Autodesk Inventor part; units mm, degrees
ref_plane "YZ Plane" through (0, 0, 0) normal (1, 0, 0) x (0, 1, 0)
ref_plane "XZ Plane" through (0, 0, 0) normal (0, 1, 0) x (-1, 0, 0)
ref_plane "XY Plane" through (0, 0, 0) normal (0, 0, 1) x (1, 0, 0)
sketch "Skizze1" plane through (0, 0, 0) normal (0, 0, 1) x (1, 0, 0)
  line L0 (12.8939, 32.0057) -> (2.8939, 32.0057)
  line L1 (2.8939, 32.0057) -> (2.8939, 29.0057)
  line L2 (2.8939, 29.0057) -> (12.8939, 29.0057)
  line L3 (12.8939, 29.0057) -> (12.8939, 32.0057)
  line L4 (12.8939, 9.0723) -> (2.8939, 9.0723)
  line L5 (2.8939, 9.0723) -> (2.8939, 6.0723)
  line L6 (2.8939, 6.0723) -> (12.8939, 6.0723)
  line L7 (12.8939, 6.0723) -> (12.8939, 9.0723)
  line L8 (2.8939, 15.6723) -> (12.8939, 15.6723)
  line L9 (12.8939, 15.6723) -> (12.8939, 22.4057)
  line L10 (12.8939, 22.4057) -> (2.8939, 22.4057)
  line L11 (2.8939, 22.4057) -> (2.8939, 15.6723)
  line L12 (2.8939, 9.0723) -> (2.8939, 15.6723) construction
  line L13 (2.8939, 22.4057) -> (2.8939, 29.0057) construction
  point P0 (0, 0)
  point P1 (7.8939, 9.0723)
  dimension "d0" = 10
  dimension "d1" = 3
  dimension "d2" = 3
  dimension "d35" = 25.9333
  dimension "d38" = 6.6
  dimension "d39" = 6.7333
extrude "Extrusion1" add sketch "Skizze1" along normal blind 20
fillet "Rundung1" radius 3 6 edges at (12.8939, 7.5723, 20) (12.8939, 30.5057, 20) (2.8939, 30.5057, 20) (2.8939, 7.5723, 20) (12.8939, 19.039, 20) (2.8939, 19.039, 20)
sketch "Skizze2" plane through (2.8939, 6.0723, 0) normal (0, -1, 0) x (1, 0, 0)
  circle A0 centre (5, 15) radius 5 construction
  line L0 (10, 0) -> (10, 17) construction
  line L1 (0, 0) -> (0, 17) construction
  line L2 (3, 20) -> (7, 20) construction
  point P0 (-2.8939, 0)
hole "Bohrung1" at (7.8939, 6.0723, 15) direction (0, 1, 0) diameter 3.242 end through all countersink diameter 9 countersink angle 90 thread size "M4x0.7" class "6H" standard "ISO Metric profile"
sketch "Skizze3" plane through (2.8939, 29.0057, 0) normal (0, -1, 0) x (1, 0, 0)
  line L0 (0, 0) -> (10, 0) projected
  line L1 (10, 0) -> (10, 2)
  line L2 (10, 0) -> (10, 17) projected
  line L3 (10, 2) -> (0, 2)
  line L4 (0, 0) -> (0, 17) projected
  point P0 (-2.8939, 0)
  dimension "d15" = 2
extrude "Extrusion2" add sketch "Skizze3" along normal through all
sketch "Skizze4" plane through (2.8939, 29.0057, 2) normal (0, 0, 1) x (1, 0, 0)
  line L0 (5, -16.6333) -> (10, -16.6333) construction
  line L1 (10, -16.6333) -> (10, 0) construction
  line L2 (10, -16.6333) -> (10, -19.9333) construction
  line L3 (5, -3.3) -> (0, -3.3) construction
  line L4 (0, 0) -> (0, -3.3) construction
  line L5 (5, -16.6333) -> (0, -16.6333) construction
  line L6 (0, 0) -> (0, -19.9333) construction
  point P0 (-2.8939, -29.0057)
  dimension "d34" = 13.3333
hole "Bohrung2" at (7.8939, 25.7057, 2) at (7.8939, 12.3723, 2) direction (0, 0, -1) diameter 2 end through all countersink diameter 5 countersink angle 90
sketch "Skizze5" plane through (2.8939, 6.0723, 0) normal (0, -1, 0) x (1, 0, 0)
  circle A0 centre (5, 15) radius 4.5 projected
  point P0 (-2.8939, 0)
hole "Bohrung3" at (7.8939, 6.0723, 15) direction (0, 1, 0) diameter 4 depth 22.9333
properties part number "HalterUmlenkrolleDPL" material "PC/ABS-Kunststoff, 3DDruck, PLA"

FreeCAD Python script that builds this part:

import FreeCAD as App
import Part
import Sketcher
from FreeCAD import Vector
Q = App.Units.Quantity


def edges_at(feature, points):
    """Names of the edges that pass closest to the given points."""
    edges = feature.Shape.Edges
    near = lambda p: min(range(len(edges)), key=lambda i: edges[i].distToShape(Part.Vertex(*p))[0])
    return sorted({f"Edge{near(p) + 1}" for p in points})


def add_polygon(sketch, points):
    """Adds a closed chain of lines whose ends are joined by coincident constraints."""
    first, n = sketch.GeometryCount, len(points)
    for a, b in zip(points, points[1:] + points[:1]):
        sketch.addGeometry(Part.LineSegment(App.Vector(*a, 0), App.Vector(*b, 0)), False)
    for i in range(n):
        sketch.addConstraint(Sketcher.Constraint("Coincident", first + i, 2, first + (i + 1) % n, 1))

doc = App.newDocument("Part")
body = doc.addObject("PartDesign::Body", "Body")
body.AllowCompound = True

sketch1 = body.newObject("Sketcher::SketchObject", "Sketch")
sketch1.AttachmentSupport = (doc.getObject("XY_Plane"), [""])
sketch1.MapMode = "FlatFace"
add_polygon(sketch1, [(12.9, 29), (12.9, 32), (2.9, 32), (2.9, 29)])
add_polygon(sketch1, [(12.9, 6.1), (12.9, 9.1), (2.9, 9.1), (2.9, 6.1)])
add_polygon(sketch1, [(2.9, 22.4), (2.9, 15.7), (12.9, 15.7), (12.9, 22.4)])
sketch1.addConstraint([
    Sketcher.Constraint("Vertical", 0),
    Sketcher.Constraint("Horizontal", 1),
    Sketcher.Constraint("Vertical", 2),
    Sketcher.Constraint("Horizontal", 3),
    Sketcher.Constraint("Vertical", 4),
    Sketcher.Constraint("Horizontal", 5),
    Sketcher.Constraint("Vertical", 6),
    Sketcher.Constraint("Horizontal", 7),
    Sketcher.Constraint("Vertical", 8),
    Sketcher.Constraint("Horizontal", 9),
    Sketcher.Constraint("Vertical", 10),
    Sketcher.Constraint("Horizontal", 11),
    Sketcher.Constraint("Vertical", 3, 2, 4, 2),
    Sketcher.Constraint("Vertical", 2, 2, 5, 2),
    Sketcher.Constraint("Vertical", 6, 2, 8, 2),
    Sketcher.Constraint("Vertical", 7, 2, 9, 2),
    Sketcher.Constraint("Equal", 2, 4),
    Sketcher.Constraint("DistanceX", 1, 2, 1, 1, Q("10 mm")),
    Sketcher.Constraint("DistanceY", 0, 1, 0, 2, Q("3 mm")),
    Sketcher.Constraint("DistanceY", 5, 2, 8, 2, Q("6.6 mm")),
    Sketcher.Constraint("DistanceY", 10, 2, 3, 2, Q("6.6 mm")),
    Sketcher.Constraint("DistanceY", 8, 2, 8, 1, Q("6.7334 mm")),
    Sketcher.Constraint("DistanceX", -1, 1, 0, 2, Q("12.894 mm")),
    Sketcher.Constraint("DistanceY", -1, 1, 0, 2, Q("32.0057 mm")),
])
pad1 = body.newObject("PartDesign::Pad", "Pad")
pad1.Profile = sketch1
pad1.Length = 20
doc.recompute()

fillet = body.newObject("PartDesign::Fillet", "Fillet")
fillet.Base = (pad1, edges_at(pad1, [
    (12.894, 7.572, 20),
    (12.894, 30.506, 20),
    (2.894, 30.506, 20),
    (2.894, 7.572, 20),
    (12.894, 19.039, 20),
    (2.894, 19.039, 20),
]))
fillet.Radius = 3

sketch2 = body.newObject("Sketcher::SketchObject", "Sketch001")
sketch2.AttachmentSupport = (doc.getObject("XZ_Plane"), [""])
sketch2.MapMode = "FlatFace"
sketch2.AttachmentOffset = App.Placement(Vector(0, 0, -6.0723), App.Rotation())
sketch2.addGeometry(Part.Circle(Vector(7.9, 15, 0), Vector(0, 0, 1), 1.6), False)
sketch2.addConstraint([
    Sketcher.Constraint("Diameter", 0, Q("3.242 mm")),
    Sketcher.Constraint("DistanceY", -1, 1, 0, 3, Q("15 mm")),
    Sketcher.Constraint("DistanceX", -1, 1, 0, 3, Q("7.894 mm")),
])
doc.recompute()
hole = body.newObject("PartDesign::Hole", "Hole")
hole.Profile = sketch2
hole.ThreadType = "None"
hole.Diameter = 3.242
hole.DepthType = "ThroughAll"
hole.HoleCutType = "Countersink"
hole.HoleCutDiameter = 9
hole.HoleCutCountersinkAngle = 90

sketch3 = body.newObject("Sketcher::SketchObject", "Sketch002")
sketch3.AttachmentSupport = (doc.getObject("XZ_Plane"), [""])
sketch3.MapMode = "FlatFace"
sketch3.AttachmentOffset = App.Placement(Vector(0, 0, -29.0057), App.Rotation())
add_polygon(sketch3, [(2.9, 2), (2.9, 0), (12.9, 0), (12.9, 2)])
sketch3.addConstraint([
    Sketcher.Constraint("Vertical", 0),
    Sketcher.Constraint("Horizontal", 1),
    Sketcher.Constraint("Vertical", 2),
    Sketcher.Constraint("Horizontal", 3),
    Sketcher.Constraint("PointOnObject", 0, 2, -1),
    Sketcher.Constraint("DistanceY", 0, 2, 0, 1, Q("2 mm")),
    Sketcher.Constraint("DistanceX", 1, 1, 1, 2, Q("10 mm")),
    Sketcher.Constraint("DistanceX", -1, 1, 0, 2, Q("2.894 mm")),
])
pad2 = body.newObject("PartDesign::Pad", "Pad001")
pad2.Profile = sketch3
pad2.Type = "UpToLast"

sketch4 = body.newObject("Sketcher::SketchObject", "Sketch003")
sketch4.AttachmentSupport = (doc.getObject("XY_Plane"), [""])
sketch4.MapMode = "FlatFace"
sketch4.AttachmentOffset = App.Placement(Vector(0, 0, 2), App.Rotation())
sketch4.addGeometry([
    Part.Circle(Vector(7.9, 25.7, 0), Vector(0, 0, 1), 1),
    Part.Circle(Vector(7.9, 12.4, 0), Vector(0, 0, 1), 1),
], False)
sketch4.addConstraint([
    Sketcher.Constraint("Equal", 0, 1),
    Sketcher.Constraint("Vertical", 0, 3, 1, 3),
    Sketcher.Constraint("Diameter", 0, Q("2 mm")),
    Sketcher.Constraint("DistanceX", -1, 1, 0, 3, Q("7.894 mm")),
    Sketcher.Constraint("DistanceY", -1, 1, 0, 3, Q("25.7057 mm")),
    Sketcher.Constraint("DistanceY", -1, 1, 1, 3, Q("12.3723 mm")),
])
doc.recompute()
hole2 = body.newObject("PartDesign::Hole", "Hole001")
hole2.Profile = sketch4
hole2.ThreadType = "None"
hole2.Diameter = 2
hole2.DepthType = "ThroughAll"
hole2.HoleCutType = "Countersink"
hole2.HoleCutDiameter = 5
hole2.HoleCutCountersinkAngle = 90

sketch5 = body.newObject("Sketcher::SketchObject", "Sketch004")
sketch5.AttachmentSupport = (doc.getObject("XZ_Plane"), [""])
sketch5.MapMode = "FlatFace"
sketch5.AttachmentOffset = App.Placement(Vector(0, 0, -6.0723), App.Rotation())
sketch5.addGeometry(Part.Circle(Vector(7.9, 15, 0), Vector(0, 0, 1), 2), False)
sketch5.addConstraint([
    Sketcher.Constraint("Diameter", 0, Q("4 mm")),
    Sketcher.Constraint("DistanceY", -1, 1, 0, 3, Q("15 mm")),
    Sketcher.Constraint("DistanceX", -1, 1, 0, 3, Q("7.894 mm")),
])
doc.recompute()
hole3 = body.newObject("PartDesign::Hole", "Hole002")
hole3.Profile = sketch5
hole3.ThreadType = "None"
hole3.Diameter = 4
hole3.DepthType = "Dimension"
hole3.Depth = 22.9333
hole3.DrillPoint = "Flat"

doc.recompute()
